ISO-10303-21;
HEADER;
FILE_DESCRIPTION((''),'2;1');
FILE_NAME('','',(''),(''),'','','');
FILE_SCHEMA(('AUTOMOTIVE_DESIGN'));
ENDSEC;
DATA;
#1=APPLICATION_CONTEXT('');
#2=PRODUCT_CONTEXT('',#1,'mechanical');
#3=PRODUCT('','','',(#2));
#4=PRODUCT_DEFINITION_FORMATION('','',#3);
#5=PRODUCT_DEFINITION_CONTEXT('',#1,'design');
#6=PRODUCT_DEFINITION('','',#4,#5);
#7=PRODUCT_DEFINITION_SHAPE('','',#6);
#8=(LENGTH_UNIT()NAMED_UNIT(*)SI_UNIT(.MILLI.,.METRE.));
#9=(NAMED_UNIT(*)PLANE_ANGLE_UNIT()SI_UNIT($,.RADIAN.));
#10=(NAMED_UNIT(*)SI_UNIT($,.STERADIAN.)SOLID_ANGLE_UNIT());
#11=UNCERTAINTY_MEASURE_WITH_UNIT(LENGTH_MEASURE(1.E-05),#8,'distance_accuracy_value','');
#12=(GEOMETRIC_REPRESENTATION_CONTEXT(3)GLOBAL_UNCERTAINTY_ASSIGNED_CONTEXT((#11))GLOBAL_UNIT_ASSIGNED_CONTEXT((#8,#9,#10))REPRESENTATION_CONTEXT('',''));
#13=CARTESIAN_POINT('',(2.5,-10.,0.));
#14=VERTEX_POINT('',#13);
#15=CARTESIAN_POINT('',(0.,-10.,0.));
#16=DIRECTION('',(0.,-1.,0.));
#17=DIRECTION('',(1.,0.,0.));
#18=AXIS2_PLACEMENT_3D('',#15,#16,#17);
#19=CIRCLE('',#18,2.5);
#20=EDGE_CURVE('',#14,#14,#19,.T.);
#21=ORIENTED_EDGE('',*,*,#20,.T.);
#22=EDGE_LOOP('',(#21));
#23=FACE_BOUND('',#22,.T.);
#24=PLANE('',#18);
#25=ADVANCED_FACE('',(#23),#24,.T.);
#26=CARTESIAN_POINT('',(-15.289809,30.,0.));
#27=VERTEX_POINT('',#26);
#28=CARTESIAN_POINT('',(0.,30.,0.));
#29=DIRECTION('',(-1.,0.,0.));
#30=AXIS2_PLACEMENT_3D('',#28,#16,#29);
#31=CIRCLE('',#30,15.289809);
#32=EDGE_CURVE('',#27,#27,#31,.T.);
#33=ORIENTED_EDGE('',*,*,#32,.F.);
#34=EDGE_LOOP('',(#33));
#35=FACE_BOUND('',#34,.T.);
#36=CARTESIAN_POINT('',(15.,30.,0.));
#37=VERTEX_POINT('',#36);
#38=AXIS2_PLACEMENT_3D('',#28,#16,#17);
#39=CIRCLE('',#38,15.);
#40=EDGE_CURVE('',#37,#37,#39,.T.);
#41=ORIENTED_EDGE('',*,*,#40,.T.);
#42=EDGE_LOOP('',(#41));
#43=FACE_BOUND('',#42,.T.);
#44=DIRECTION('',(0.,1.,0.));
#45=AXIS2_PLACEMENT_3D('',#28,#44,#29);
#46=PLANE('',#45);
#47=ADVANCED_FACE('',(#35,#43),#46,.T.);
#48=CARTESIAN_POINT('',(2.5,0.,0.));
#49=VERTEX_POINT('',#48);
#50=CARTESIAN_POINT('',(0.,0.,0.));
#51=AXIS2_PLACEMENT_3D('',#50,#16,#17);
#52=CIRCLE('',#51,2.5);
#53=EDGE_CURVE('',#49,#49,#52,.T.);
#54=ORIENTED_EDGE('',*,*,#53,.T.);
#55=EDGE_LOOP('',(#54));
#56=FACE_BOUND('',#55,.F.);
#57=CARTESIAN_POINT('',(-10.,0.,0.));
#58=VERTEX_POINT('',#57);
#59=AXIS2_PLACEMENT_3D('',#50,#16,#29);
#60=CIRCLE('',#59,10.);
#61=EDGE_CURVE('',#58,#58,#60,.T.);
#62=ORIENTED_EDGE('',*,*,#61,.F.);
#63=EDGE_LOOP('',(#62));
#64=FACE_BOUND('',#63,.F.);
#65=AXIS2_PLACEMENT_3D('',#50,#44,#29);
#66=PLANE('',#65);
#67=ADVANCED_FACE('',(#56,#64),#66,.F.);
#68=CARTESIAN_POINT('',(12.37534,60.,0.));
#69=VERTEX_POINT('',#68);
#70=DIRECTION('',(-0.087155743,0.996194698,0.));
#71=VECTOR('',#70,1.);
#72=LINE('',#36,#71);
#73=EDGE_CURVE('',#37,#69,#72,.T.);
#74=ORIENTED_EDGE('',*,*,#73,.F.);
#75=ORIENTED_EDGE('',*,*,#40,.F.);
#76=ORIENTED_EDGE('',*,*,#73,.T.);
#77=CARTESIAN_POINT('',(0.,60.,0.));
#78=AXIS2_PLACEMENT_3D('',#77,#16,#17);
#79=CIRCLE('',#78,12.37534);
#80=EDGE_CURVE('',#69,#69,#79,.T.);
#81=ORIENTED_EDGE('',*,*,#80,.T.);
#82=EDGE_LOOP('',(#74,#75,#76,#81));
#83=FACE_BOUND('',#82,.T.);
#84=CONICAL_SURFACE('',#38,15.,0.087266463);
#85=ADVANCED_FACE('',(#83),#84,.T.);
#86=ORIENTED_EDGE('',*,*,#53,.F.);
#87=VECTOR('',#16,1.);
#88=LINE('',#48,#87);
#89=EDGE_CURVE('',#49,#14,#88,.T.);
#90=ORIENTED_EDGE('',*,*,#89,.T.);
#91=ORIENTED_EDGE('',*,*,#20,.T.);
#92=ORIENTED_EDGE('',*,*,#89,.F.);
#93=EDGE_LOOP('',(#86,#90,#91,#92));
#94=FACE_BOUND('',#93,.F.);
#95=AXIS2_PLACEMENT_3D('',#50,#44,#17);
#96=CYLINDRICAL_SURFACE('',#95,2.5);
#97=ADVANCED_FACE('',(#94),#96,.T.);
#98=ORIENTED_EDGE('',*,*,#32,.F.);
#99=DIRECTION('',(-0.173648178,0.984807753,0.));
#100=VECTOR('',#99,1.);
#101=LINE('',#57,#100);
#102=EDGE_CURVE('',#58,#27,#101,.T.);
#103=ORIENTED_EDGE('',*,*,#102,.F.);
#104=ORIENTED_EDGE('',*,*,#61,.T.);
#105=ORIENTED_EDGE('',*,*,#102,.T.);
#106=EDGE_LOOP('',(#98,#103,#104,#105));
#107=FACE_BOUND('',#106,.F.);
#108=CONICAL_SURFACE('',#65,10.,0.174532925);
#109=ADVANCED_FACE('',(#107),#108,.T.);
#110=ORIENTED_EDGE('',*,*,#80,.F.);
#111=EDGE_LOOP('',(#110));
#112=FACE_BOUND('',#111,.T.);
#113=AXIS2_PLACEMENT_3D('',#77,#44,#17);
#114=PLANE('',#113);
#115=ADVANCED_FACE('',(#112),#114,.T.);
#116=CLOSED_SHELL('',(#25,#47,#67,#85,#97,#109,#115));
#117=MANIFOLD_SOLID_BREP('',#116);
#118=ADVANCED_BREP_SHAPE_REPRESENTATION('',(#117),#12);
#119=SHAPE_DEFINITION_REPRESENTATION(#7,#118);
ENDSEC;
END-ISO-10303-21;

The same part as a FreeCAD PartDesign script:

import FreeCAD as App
import Part
import Sketcher
Q = App.Units.Quantity

doc = App.newDocument("Part")
body = doc.addObject("PartDesign::Body", "Body")

sketch1 = body.newObject("Sketcher::SketchObject", "Sketch")
sketch1.AttachmentSupport = (doc.getObject("XZ_Plane"), [""])
sketch1.MapMode = "FlatFace"
sketch1.addGeometry(Part.Circle(App.Vector(0, 0, 0), App.Vector(0, 0, 1), 10), False)
sketch1.addConstraint([
    Sketcher.Constraint("Coincident", 0, 3, -1, 1),
    Sketcher.Constraint("Diameter", 0, Q("20 mm")),
])
pad1 = body.newObject("PartDesign::Pad", "Pad")
pad1.Profile = sketch1
pad1.Length = 30
pad1.Reversed = True
pad1.TaperAngle = 10

sketch2 = body.newObject("Sketcher::SketchObject", "Sketch001")
sketch2.AttachmentSupport = (doc.getObject("XZ_Plane"), [""])
sketch2.MapMode = "FlatFace"
sketch2.AttachmentOffset = App.Placement(App.Vector(0, 0, -30), App.Rotation())
sketch2.addGeometry(Part.Circle(App.Vector(0, 0, 0), App.Vector(0, 0, 1), 15), False)
sketch2.addConstraint([
    Sketcher.Constraint("Coincident", 0, 3, -1, 1),
    Sketcher.Constraint("Diameter", 0, Q("30 mm")),
])
pad2 = body.newObject("PartDesign::Pad", "Pad001")
pad2.Profile = sketch2
pad2.Length = 30
pad2.Reversed = True
pad2.TaperAngle = -5

sketch3 = body.newObject("Sketcher::SketchObject", "Sketch002")
sketch3.AttachmentSupport = (doc.getObject("XZ_Plane"), [""])
sketch3.MapMode = "FlatFace"
sketch3.addGeometry(Part.Circle(App.Vector(0, 0, 0), App.Vector(0, 0, 1), 2.5), False)
sketch3.addConstraint([
    Sketcher.Constraint("Coincident", 0, 3, -1, 1),
    Sketcher.Constraint("Diameter", 0, Q("5 mm")),
])
pad3 = body.newObject("PartDesign::Pad", "Pad002")
pad3.Profile = sketch3
pad3.Length = 10

doc.recompute()
